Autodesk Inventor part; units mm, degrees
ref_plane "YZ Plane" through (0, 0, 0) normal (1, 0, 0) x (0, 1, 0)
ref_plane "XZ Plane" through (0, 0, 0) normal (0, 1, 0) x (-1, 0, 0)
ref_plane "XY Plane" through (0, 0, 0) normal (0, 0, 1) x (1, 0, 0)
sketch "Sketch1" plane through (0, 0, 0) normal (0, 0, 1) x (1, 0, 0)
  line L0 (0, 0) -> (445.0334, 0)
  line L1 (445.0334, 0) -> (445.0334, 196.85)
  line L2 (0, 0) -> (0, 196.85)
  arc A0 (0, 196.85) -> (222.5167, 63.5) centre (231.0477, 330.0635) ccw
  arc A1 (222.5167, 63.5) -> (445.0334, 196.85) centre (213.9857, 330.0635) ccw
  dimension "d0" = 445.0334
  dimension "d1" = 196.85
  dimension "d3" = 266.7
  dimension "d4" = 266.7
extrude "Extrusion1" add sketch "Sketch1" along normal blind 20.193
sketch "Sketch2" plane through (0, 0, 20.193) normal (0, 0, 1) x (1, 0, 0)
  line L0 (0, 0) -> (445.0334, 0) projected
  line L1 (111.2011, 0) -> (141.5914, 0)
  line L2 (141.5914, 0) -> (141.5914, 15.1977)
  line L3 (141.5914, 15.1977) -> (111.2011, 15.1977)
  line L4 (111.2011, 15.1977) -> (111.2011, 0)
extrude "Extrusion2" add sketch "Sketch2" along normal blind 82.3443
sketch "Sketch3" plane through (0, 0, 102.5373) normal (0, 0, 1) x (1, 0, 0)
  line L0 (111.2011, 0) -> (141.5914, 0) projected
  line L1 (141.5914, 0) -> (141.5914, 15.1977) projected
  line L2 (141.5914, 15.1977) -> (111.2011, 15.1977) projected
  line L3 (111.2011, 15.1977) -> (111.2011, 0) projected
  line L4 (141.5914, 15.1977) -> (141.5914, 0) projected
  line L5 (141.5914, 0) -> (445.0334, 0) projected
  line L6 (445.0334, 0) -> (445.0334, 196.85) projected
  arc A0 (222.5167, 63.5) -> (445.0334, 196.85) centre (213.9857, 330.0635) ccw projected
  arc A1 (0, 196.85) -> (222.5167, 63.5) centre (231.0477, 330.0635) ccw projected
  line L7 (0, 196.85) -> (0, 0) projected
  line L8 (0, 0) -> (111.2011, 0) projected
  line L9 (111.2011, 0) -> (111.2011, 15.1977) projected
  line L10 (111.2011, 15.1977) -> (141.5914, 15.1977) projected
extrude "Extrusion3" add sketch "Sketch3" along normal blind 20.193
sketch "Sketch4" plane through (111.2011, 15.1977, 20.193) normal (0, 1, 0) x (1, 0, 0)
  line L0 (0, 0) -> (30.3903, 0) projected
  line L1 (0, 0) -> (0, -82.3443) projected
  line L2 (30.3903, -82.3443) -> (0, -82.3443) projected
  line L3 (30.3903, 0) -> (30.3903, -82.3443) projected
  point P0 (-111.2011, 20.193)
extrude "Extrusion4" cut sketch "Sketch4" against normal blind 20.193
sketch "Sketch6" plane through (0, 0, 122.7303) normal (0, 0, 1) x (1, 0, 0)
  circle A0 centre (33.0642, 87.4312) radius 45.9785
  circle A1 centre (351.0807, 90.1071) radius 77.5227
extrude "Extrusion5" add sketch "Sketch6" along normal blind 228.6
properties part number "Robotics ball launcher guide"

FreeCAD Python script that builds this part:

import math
import FreeCAD as App
import Part
import Sketcher
from FreeCAD import Vector
Q = App.Units.Quantity


def add_polygon(sketch, points):
    """Adds a closed chain of lines whose ends are joined by coincident constraints."""
    first, n = sketch.GeometryCount, len(points)
    for a, b in zip(points, points[1:] + points[:1]):
        sketch.addGeometry(Part.LineSegment(App.Vector(*a, 0), App.Vector(*b, 0)), False)
    for i in range(n):
        sketch.addConstraint(Sketcher.Constraint("Coincident", first + i, 2, first + (i + 1) % n, 1))

doc = App.newDocument("Part")
body = doc.addObject("PartDesign::Body", "Body")
body.AllowCompound = True

sketch1 = doc.addObject("Sketcher::SketchObject", "Sketch")
body.addObject(sketch1)
sketch1.AttachmentSupport = (doc.XY_Plane, [""])
sketch1.MapMode = "FlatFace"
sketch1.addGeometry(Part.LineSegment(Vector(0, 197, 0), Vector(0, 0, 0)), False)
sketch1.addGeometry(Part.LineSegment(Vector(0, 0, 0), Vector(445, 0, 0)), False)
sketch1.addGeometry(Part.LineSegment(Vector(445, 0, 0), Vector(445, 197, 0)), False)
sketch1.addGeometry(Part.ArcOfCircle(Part.Circle(Vector(214, 330, 0), Vector(0, 0, 1), 267), math.radians(-88), math.radians(-30)), False)
sketch1.addGeometry(Part.ArcOfCircle(Part.Circle(Vector(231, 330, 0), Vector(0, 0, 1), 267), math.radians(-150), math.radians(-92)), False)
sketch1.addConstraint(Sketcher.Constraint("Coincident", 0, 2, 1, 1))
sketch1.addConstraint(Sketcher.Constraint("Coincident", 1, 2, 2, 1))
sketch1.addConstraint(Sketcher.Constraint("Coincident", 2, 2, 3, 2))
sketch1.addConstraint(Sketcher.Constraint("Coincident", 3, 1, 4, 2))
sketch1.addConstraint(Sketcher.Constraint("Coincident", 4, 1, 0, 1))
sketch1.addConstraint(Sketcher.Constraint("Vertical", 0))
sketch1.addConstraint(Sketcher.Constraint("Horizontal", 1))
sketch1.addConstraint(Sketcher.Constraint("Vertical", 2))
sketch1.addConstraint(Sketcher.Constraint("Coincident", 0, 2, -1, 1))
sketch1.addConstraint(Sketcher.Constraint("Equal", 3, 4))
sketch1.addConstraint(Sketcher.Constraint("Horizontal", 3, 3, 4, 3))
sketch1.addConstraint(Sketcher.Constraint("Horizontal", 2, 2, 4, 1))
sketch1.addConstraint(Sketcher.Constraint("Radius", 3, Q("10.5 in")))
sketch1.addConstraint(Sketcher.Constraint("DistanceY", 0, 2, 0, 1, Q("7.75 in")))
sketch1.addConstraint(Sketcher.Constraint("DistanceX", 1, 1, 1, 2, Q("17.521 in")))
sketch1.addConstraint(Sketcher.Constraint("DistanceY", -1, 1, 3, 1, Q("2.5 in")))
pad1 = doc.addObject("PartDesign::Pad", "Pad")
body.addObject(pad1)
pad1.Profile = sketch1
pad1.Length = Q("0.795 in")

sketch2 = doc.addObject("Sketcher::SketchObject", "Sketch001")
body.addObject(sketch2)
sketch2.AttachmentSupport = (doc.XY_Plane, [""])
sketch2.MapMode = "FlatFace"
sketch2.AttachmentOffset = App.Placement(Vector(0, 0, 0.795 * 25.4), App.Rotation())
add_polygon(sketch2, [(111, 15), (111, 0), (142, 0), (142, 15)])
sketch2.addConstraint(Sketcher.Constraint("Vertical", 0))
sketch2.addConstraint(Sketcher.Constraint("Horizontal", 1))
sketch2.addConstraint(Sketcher.Constraint("Vertical", 2))
sketch2.addConstraint(Sketcher.Constraint("Horizontal", 3))
sketch2.addConstraint(Sketcher.Constraint("PointOnObject", 0, 2, -1))
sketch2.addConstraint(Sketcher.Constraint("DistanceX", -1, 1, 0, 2, Q("4.378 in")))
sketch2.addConstraint(Sketcher.Constraint("DistanceX", 1, 1, 1, 2, Q("30.3903 mm")))
sketch2.addConstraint(Sketcher.Constraint("DistanceY", 0, 2, 0, 1, Q("15.1977 mm")))
pad2 = doc.addObject("PartDesign::Pad", "Pad001")
body.addObject(pad2)
pad2.Profile = sketch2
pad2.Length = Q("3.2419016 in")

sketch3 = doc.addObject("Sketcher::SketchObject", "Sketch002")
body.addObject(sketch3)
sketch3.AttachmentSupport = (doc.XY_Plane, [""])
sketch3.MapMode = "FlatFace"
sketch3.AttachmentOffset = App.Placement(Vector(0, 0, 4.0369016 * 25.4), App.Rotation())
sketch3.addGeometry(Part.LineSegment(Vector(445, 0, 0), Vector(445, 197, 0)), False)
sketch3.addGeometry(Part.ArcOfCircle(Part.Circle(Vector(214, 330, 0), Vector(0, 0, 1), 267), math.radians(-88), math.radians(-30)), False)
sketch3.addGeometry(Part.ArcOfCircle(Part.Circle(Vector(231, 330, 0), Vector(0, 0, 1), 267), math.radians(-150), math.radians(-92)), False)
sketch3.addGeometry(Part.LineSegment(Vector(0, 197, 0), Vector(0, 0, 0)), False)
sketch3.addGeometry(Part.LineSegment(Vector(0, 0, 0), Vector(445, 0, 0)), False)
sketch3.addConstraint(Sketcher.Constraint("Coincident", 0, 2, 1, 2))
sketch3.addConstraint(Sketcher.Constraint("Coincident", 1, 1, 2, 2))
sketch3.addConstraint(Sketcher.Constraint("Coincident", 2, 1, 3, 1))
sketch3.addConstraint(Sketcher.Constraint("Coincident", 3, 2, 4, 1))
sketch3.addConstraint(Sketcher.Constraint("Coincident", 4, 2, 0, 1))
sketch3.addConstraint(Sketcher.Constraint("Vertical", 0))
sketch3.addConstraint(Sketcher.Constraint("Vertical", 3))
sketch3.addConstraint(Sketcher.Constraint("Horizontal", 4))
sketch3.addConstraint(Sketcher.Constraint("Coincident", 3, 2, -1, 1))
sketch3.addConstraint(Sketcher.Constraint("Equal", 1, 2))
sketch3.addConstraint(Sketcher.Constraint("Horizontal", 1, 3, 2, 3))
sketch3.addConstraint(Sketcher.Constraint("Horizontal", 0, 2, 2, 1))
sketch3.addConstraint(Sketcher.Constraint("Radius", 1, Q("10.5 in")))
sketch3.addConstraint(Sketcher.Constraint("DistanceY", 0, 1, 0, 2, Q("7.75 in")))
sketch3.addConstraint(Sketcher.Constraint("DistanceY", -1, 1, 1, 1, Q("2.5 in")))
sketch3.addConstraint(Sketcher.Constraint("DistanceX", 4, 1, 4, 2, Q("17.521 in")))
pad3 = doc.addObject("PartDesign::Pad", "Pad002")
body.addObject(pad3)
pad3.Profile = sketch3
pad3.Length = Q("0.795 in")

sketch4 = doc.addObject("Sketcher::SketchObject", "Sketch003")
body.addObject(sketch4)
sketch4.AttachmentSupport = (doc.XZ_Plane, [""])
sketch4.MapMode = "FlatFace"
sketch4.AttachmentOffset = App.Placement(Vector(0, 0, -15.1977), App.Rotation())
add_polygon(sketch4, [(142, 20), (111, 20), (111, 103), (142, 103)])
sketch4.addConstraint(Sketcher.Constraint("Horizontal", 0))
sketch4.addConstraint(Sketcher.Constraint("Vertical", 1))
sketch4.addConstraint(Sketcher.Constraint("Horizontal", 2))
sketch4.addConstraint(Sketcher.Constraint("Vertical", 3))
sketch4.addConstraint(Sketcher.Constraint("DistanceY", 1, 1, 1, 2, Q("3.2419 in")))
sketch4.addConstraint(Sketcher.Constraint("DistanceX", -1, 1, 0, 2, Q("4.378 in")))
sketch4.addConstraint(Sketcher.Constraint("DistanceY", -1, 1, 0, 2, Q("0.795 in")))
sketch4.addConstraint(Sketcher.Constraint("DistanceX", 0, 2, 0, 1, Q("30.3903 mm")))
pocket1 = doc.addObject("PartDesign::Pocket", "Pocket")
body.addObject(pocket1)
pocket1.Profile = sketch4
pocket1.Length = Q("0.795 in")
pocket1.Reversed = True

sketch5 = doc.addObject("Sketcher::SketchObject", "Sketch004")
body.addObject(sketch5)
sketch5.AttachmentSupport = (doc.XY_Plane, [""])
sketch5.MapMode = "FlatFace"
sketch5.AttachmentOffset = App.Placement(Vector(0, 0, 4.8319016 * 25.4), App.Rotation())
sketch5.addGeometry(Part.Circle(Vector(33, 87, 0), Vector(0, 0, 1), 46), False)
sketch5.addGeometry(Part.Circle(Vector(351, 90, 0), Vector(0, 0, 1), 78), False)
sketch5.addConstraint(Sketcher.Constraint("Diameter", 0, Q("91.957 mm")))
sketch5.addConstraint(Sketcher.Constraint("Diameter", 1, Q("155.0454 mm")))
sketch5.addConstraint(Sketcher.Constraint("DistanceX", -1, 1, 0, 3, Q("33.0642 mm")))
sketch5.addConstraint(Sketcher.Constraint("DistanceY", -1, 1, 0, 3, Q("87.4312 mm")))
sketch5.addConstraint(Sketcher.Constraint("DistanceX", -1, 1, 1, 3, Q("351.0807 mm")))
sketch5.addConstraint(Sketcher.Constraint("DistanceY", -1, 1, 1, 3, Q("90.107 mm")))
pad4 = doc.addObject("PartDesign::Pad", "Pad003")
body.addObject(pad4)
pad4.Profile = sketch5
pad4.Length = Q("9 in")

doc.recompute()
